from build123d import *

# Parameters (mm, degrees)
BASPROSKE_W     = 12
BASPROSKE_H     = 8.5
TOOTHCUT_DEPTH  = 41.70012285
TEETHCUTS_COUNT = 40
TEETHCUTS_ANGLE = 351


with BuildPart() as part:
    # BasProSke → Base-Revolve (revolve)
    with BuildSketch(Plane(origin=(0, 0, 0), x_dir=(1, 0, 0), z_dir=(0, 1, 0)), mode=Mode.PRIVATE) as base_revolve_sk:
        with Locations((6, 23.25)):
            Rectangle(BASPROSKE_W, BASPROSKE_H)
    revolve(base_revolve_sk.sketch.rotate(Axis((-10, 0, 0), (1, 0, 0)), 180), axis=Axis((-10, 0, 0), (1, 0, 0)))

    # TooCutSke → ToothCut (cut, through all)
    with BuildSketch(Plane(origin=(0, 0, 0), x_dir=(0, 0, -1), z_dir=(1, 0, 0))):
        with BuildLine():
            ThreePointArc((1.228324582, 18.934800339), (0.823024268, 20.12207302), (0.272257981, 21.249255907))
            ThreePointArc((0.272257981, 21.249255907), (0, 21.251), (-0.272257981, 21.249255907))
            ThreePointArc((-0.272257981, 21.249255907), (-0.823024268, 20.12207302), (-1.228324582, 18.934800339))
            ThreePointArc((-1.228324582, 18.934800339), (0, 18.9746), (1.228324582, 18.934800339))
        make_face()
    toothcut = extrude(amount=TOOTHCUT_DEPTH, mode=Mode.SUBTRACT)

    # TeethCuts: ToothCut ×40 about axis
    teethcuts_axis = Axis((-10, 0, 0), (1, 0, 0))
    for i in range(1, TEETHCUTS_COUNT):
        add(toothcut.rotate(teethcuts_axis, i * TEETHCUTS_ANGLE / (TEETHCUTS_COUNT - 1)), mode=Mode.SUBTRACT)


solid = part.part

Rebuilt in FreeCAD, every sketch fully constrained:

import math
import FreeCAD as App
import Part
import Sketcher

V = App.Vector


def add_polygon(sketch, points):
    """Adds a closed chain of lines whose ends are joined by coincident constraints."""
    first, n = sketch.GeometryCount, len(points)
    for a, b in zip(points, points[1:] + points[:1]):
        sketch.addGeometry(Part.LineSegment(App.Vector(*a, 0), App.Vector(*b, 0)), False)
    for i in range(n):
        sketch.addConstraint(Sketcher.Constraint("Coincident", first + i, 2, first + (i + 1) % n, 1))

doc = App.newDocument("Part")
body = doc.addObject("PartDesign::Body", "Body")

# Sketch on XZ plane
sketch1 = doc.addObject("Sketcher::SketchObject", "Sketch")
body.addObject(sketch1)
sketch1.AttachmentSupport = (doc.XZ_Plane, [""])
sketch1.MapMode = "FlatFace"
add_polygon(sketch1, [(0, -28), (0, -19), (12, -19), (12, -28)])  # lines 0-3
sketch1.addConstraint(Sketcher.Constraint("Vertical", 0))
sketch1.addConstraint(Sketcher.Constraint("Horizontal", 1))
sketch1.addConstraint(Sketcher.Constraint("Vertical", 2))
sketch1.addConstraint(Sketcher.Constraint("Horizontal", 3))
sketch1.addConstraint(Sketcher.Constraint("PointOnObject", 0, 2, -2))
sketch1.addConstraint(Sketcher.Constraint("DistanceX", 1, 1, 1, 2, 12.0))
sketch1.addConstraint(Sketcher.Constraint("DistanceY", 0, 1, 0, 2, 8.5))
sketch1.addConstraint(Sketcher.Constraint("DistanceY", 0, 2, -1, 1, 19.0))
revolution = doc.addObject("PartDesign::Revolution", "Revolution")
body.addObject(revolution)
revolution.Profile = sketch1
revolution.ReferenceAxis = (sketch1, ["H_Axis"])
revolution.Angle = 360

# Sketch on YZ plane
sketch2 = doc.addObject("Sketcher::SketchObject", "Sketch001")
body.addObject(sketch2)
sketch2.AttachmentSupport = (doc.YZ_Plane, [""])
sketch2.MapMode = "FlatFace"
sketch2.addGeometry(Part.ArcOfCircle(Part.Circle(V(16.3, 8.4, 0), V(0, 0, 1), 10), math.radians(-74.75), math.radians(-60.36)), False)
sketch2.addGeometry(Part.ArcOfCircle(Part.Circle(V(0, 0, 0), V(0, 0, 1), 21.3), math.radians(-0.73), math.radians(0.73)), False)
sketch2.addGeometry(Part.ArcOfCircle(Part.Circle(V(16.3, -8.4, 0), V(0, 0, 1), 10), math.radians(60.36), math.radians(74.75)), False)
sketch2.addGeometry(Part.ArcOfCircle(Part.Circle(V(0, 0, 0), V(0, 0, 1), 19), math.radians(-3.71), math.radians(3.71)), False)
sketch2.addConstraint(Sketcher.Constraint("Coincident", 0, 2, 1, 1))
sketch2.addConstraint(Sketcher.Constraint("Coincident", 1, 2, 2, 1))
sketch2.addConstraint(Sketcher.Constraint("Coincident", 2, 2, 3, 2))
sketch2.addConstraint(Sketcher.Constraint("Coincident", 3, 1, 0, 1))
sketch2.addConstraint(Sketcher.Constraint("Coincident", 1, 3, -1, 1))
sketch2.addConstraint(Sketcher.Constraint("Coincident", 3, 3, -1, 1))
sketch2.addConstraint(Sketcher.Constraint("Equal", 0, 2))
sketch2.addConstraint(Sketcher.Constraint("Symmetric", 0, 3, 2, 3, -1))
sketch2.addConstraint(Sketcher.Constraint("Radius", 0, 10.0))
sketch2.addConstraint(Sketcher.Constraint("Radius", 3, 18.9746))
sketch2.addConstraint(Sketcher.Constraint("Radius", 1, 21.251003))
sketch2.addConstraint(Sketcher.Constraint("DistanceX", -1, 1, 2, 2, 18.9348))
sketch2.addConstraint(Sketcher.Constraint("DistanceY", 2, 3, 0, 3, 16.83891))
pocket1 = doc.addObject("PartDesign::Pocket", "Pocket")
body.addObject(pocket1)
pocket1.Profile = sketch2
pocket1.Type = "ThroughAll"
pocket1.Reversed = True
doc.recompute()

polarpattern = doc.addObject("PartDesign::PolarPattern", "PolarPattern")
body.addObject(polarpattern)
polarpattern.Originals = [pocket1]
polarpattern.Axis = (doc.X_Axis, [""])
polarpattern.Angle = 360
polarpattern.Occurrences = 40
body.Tip = polarpattern

doc.recompute()
